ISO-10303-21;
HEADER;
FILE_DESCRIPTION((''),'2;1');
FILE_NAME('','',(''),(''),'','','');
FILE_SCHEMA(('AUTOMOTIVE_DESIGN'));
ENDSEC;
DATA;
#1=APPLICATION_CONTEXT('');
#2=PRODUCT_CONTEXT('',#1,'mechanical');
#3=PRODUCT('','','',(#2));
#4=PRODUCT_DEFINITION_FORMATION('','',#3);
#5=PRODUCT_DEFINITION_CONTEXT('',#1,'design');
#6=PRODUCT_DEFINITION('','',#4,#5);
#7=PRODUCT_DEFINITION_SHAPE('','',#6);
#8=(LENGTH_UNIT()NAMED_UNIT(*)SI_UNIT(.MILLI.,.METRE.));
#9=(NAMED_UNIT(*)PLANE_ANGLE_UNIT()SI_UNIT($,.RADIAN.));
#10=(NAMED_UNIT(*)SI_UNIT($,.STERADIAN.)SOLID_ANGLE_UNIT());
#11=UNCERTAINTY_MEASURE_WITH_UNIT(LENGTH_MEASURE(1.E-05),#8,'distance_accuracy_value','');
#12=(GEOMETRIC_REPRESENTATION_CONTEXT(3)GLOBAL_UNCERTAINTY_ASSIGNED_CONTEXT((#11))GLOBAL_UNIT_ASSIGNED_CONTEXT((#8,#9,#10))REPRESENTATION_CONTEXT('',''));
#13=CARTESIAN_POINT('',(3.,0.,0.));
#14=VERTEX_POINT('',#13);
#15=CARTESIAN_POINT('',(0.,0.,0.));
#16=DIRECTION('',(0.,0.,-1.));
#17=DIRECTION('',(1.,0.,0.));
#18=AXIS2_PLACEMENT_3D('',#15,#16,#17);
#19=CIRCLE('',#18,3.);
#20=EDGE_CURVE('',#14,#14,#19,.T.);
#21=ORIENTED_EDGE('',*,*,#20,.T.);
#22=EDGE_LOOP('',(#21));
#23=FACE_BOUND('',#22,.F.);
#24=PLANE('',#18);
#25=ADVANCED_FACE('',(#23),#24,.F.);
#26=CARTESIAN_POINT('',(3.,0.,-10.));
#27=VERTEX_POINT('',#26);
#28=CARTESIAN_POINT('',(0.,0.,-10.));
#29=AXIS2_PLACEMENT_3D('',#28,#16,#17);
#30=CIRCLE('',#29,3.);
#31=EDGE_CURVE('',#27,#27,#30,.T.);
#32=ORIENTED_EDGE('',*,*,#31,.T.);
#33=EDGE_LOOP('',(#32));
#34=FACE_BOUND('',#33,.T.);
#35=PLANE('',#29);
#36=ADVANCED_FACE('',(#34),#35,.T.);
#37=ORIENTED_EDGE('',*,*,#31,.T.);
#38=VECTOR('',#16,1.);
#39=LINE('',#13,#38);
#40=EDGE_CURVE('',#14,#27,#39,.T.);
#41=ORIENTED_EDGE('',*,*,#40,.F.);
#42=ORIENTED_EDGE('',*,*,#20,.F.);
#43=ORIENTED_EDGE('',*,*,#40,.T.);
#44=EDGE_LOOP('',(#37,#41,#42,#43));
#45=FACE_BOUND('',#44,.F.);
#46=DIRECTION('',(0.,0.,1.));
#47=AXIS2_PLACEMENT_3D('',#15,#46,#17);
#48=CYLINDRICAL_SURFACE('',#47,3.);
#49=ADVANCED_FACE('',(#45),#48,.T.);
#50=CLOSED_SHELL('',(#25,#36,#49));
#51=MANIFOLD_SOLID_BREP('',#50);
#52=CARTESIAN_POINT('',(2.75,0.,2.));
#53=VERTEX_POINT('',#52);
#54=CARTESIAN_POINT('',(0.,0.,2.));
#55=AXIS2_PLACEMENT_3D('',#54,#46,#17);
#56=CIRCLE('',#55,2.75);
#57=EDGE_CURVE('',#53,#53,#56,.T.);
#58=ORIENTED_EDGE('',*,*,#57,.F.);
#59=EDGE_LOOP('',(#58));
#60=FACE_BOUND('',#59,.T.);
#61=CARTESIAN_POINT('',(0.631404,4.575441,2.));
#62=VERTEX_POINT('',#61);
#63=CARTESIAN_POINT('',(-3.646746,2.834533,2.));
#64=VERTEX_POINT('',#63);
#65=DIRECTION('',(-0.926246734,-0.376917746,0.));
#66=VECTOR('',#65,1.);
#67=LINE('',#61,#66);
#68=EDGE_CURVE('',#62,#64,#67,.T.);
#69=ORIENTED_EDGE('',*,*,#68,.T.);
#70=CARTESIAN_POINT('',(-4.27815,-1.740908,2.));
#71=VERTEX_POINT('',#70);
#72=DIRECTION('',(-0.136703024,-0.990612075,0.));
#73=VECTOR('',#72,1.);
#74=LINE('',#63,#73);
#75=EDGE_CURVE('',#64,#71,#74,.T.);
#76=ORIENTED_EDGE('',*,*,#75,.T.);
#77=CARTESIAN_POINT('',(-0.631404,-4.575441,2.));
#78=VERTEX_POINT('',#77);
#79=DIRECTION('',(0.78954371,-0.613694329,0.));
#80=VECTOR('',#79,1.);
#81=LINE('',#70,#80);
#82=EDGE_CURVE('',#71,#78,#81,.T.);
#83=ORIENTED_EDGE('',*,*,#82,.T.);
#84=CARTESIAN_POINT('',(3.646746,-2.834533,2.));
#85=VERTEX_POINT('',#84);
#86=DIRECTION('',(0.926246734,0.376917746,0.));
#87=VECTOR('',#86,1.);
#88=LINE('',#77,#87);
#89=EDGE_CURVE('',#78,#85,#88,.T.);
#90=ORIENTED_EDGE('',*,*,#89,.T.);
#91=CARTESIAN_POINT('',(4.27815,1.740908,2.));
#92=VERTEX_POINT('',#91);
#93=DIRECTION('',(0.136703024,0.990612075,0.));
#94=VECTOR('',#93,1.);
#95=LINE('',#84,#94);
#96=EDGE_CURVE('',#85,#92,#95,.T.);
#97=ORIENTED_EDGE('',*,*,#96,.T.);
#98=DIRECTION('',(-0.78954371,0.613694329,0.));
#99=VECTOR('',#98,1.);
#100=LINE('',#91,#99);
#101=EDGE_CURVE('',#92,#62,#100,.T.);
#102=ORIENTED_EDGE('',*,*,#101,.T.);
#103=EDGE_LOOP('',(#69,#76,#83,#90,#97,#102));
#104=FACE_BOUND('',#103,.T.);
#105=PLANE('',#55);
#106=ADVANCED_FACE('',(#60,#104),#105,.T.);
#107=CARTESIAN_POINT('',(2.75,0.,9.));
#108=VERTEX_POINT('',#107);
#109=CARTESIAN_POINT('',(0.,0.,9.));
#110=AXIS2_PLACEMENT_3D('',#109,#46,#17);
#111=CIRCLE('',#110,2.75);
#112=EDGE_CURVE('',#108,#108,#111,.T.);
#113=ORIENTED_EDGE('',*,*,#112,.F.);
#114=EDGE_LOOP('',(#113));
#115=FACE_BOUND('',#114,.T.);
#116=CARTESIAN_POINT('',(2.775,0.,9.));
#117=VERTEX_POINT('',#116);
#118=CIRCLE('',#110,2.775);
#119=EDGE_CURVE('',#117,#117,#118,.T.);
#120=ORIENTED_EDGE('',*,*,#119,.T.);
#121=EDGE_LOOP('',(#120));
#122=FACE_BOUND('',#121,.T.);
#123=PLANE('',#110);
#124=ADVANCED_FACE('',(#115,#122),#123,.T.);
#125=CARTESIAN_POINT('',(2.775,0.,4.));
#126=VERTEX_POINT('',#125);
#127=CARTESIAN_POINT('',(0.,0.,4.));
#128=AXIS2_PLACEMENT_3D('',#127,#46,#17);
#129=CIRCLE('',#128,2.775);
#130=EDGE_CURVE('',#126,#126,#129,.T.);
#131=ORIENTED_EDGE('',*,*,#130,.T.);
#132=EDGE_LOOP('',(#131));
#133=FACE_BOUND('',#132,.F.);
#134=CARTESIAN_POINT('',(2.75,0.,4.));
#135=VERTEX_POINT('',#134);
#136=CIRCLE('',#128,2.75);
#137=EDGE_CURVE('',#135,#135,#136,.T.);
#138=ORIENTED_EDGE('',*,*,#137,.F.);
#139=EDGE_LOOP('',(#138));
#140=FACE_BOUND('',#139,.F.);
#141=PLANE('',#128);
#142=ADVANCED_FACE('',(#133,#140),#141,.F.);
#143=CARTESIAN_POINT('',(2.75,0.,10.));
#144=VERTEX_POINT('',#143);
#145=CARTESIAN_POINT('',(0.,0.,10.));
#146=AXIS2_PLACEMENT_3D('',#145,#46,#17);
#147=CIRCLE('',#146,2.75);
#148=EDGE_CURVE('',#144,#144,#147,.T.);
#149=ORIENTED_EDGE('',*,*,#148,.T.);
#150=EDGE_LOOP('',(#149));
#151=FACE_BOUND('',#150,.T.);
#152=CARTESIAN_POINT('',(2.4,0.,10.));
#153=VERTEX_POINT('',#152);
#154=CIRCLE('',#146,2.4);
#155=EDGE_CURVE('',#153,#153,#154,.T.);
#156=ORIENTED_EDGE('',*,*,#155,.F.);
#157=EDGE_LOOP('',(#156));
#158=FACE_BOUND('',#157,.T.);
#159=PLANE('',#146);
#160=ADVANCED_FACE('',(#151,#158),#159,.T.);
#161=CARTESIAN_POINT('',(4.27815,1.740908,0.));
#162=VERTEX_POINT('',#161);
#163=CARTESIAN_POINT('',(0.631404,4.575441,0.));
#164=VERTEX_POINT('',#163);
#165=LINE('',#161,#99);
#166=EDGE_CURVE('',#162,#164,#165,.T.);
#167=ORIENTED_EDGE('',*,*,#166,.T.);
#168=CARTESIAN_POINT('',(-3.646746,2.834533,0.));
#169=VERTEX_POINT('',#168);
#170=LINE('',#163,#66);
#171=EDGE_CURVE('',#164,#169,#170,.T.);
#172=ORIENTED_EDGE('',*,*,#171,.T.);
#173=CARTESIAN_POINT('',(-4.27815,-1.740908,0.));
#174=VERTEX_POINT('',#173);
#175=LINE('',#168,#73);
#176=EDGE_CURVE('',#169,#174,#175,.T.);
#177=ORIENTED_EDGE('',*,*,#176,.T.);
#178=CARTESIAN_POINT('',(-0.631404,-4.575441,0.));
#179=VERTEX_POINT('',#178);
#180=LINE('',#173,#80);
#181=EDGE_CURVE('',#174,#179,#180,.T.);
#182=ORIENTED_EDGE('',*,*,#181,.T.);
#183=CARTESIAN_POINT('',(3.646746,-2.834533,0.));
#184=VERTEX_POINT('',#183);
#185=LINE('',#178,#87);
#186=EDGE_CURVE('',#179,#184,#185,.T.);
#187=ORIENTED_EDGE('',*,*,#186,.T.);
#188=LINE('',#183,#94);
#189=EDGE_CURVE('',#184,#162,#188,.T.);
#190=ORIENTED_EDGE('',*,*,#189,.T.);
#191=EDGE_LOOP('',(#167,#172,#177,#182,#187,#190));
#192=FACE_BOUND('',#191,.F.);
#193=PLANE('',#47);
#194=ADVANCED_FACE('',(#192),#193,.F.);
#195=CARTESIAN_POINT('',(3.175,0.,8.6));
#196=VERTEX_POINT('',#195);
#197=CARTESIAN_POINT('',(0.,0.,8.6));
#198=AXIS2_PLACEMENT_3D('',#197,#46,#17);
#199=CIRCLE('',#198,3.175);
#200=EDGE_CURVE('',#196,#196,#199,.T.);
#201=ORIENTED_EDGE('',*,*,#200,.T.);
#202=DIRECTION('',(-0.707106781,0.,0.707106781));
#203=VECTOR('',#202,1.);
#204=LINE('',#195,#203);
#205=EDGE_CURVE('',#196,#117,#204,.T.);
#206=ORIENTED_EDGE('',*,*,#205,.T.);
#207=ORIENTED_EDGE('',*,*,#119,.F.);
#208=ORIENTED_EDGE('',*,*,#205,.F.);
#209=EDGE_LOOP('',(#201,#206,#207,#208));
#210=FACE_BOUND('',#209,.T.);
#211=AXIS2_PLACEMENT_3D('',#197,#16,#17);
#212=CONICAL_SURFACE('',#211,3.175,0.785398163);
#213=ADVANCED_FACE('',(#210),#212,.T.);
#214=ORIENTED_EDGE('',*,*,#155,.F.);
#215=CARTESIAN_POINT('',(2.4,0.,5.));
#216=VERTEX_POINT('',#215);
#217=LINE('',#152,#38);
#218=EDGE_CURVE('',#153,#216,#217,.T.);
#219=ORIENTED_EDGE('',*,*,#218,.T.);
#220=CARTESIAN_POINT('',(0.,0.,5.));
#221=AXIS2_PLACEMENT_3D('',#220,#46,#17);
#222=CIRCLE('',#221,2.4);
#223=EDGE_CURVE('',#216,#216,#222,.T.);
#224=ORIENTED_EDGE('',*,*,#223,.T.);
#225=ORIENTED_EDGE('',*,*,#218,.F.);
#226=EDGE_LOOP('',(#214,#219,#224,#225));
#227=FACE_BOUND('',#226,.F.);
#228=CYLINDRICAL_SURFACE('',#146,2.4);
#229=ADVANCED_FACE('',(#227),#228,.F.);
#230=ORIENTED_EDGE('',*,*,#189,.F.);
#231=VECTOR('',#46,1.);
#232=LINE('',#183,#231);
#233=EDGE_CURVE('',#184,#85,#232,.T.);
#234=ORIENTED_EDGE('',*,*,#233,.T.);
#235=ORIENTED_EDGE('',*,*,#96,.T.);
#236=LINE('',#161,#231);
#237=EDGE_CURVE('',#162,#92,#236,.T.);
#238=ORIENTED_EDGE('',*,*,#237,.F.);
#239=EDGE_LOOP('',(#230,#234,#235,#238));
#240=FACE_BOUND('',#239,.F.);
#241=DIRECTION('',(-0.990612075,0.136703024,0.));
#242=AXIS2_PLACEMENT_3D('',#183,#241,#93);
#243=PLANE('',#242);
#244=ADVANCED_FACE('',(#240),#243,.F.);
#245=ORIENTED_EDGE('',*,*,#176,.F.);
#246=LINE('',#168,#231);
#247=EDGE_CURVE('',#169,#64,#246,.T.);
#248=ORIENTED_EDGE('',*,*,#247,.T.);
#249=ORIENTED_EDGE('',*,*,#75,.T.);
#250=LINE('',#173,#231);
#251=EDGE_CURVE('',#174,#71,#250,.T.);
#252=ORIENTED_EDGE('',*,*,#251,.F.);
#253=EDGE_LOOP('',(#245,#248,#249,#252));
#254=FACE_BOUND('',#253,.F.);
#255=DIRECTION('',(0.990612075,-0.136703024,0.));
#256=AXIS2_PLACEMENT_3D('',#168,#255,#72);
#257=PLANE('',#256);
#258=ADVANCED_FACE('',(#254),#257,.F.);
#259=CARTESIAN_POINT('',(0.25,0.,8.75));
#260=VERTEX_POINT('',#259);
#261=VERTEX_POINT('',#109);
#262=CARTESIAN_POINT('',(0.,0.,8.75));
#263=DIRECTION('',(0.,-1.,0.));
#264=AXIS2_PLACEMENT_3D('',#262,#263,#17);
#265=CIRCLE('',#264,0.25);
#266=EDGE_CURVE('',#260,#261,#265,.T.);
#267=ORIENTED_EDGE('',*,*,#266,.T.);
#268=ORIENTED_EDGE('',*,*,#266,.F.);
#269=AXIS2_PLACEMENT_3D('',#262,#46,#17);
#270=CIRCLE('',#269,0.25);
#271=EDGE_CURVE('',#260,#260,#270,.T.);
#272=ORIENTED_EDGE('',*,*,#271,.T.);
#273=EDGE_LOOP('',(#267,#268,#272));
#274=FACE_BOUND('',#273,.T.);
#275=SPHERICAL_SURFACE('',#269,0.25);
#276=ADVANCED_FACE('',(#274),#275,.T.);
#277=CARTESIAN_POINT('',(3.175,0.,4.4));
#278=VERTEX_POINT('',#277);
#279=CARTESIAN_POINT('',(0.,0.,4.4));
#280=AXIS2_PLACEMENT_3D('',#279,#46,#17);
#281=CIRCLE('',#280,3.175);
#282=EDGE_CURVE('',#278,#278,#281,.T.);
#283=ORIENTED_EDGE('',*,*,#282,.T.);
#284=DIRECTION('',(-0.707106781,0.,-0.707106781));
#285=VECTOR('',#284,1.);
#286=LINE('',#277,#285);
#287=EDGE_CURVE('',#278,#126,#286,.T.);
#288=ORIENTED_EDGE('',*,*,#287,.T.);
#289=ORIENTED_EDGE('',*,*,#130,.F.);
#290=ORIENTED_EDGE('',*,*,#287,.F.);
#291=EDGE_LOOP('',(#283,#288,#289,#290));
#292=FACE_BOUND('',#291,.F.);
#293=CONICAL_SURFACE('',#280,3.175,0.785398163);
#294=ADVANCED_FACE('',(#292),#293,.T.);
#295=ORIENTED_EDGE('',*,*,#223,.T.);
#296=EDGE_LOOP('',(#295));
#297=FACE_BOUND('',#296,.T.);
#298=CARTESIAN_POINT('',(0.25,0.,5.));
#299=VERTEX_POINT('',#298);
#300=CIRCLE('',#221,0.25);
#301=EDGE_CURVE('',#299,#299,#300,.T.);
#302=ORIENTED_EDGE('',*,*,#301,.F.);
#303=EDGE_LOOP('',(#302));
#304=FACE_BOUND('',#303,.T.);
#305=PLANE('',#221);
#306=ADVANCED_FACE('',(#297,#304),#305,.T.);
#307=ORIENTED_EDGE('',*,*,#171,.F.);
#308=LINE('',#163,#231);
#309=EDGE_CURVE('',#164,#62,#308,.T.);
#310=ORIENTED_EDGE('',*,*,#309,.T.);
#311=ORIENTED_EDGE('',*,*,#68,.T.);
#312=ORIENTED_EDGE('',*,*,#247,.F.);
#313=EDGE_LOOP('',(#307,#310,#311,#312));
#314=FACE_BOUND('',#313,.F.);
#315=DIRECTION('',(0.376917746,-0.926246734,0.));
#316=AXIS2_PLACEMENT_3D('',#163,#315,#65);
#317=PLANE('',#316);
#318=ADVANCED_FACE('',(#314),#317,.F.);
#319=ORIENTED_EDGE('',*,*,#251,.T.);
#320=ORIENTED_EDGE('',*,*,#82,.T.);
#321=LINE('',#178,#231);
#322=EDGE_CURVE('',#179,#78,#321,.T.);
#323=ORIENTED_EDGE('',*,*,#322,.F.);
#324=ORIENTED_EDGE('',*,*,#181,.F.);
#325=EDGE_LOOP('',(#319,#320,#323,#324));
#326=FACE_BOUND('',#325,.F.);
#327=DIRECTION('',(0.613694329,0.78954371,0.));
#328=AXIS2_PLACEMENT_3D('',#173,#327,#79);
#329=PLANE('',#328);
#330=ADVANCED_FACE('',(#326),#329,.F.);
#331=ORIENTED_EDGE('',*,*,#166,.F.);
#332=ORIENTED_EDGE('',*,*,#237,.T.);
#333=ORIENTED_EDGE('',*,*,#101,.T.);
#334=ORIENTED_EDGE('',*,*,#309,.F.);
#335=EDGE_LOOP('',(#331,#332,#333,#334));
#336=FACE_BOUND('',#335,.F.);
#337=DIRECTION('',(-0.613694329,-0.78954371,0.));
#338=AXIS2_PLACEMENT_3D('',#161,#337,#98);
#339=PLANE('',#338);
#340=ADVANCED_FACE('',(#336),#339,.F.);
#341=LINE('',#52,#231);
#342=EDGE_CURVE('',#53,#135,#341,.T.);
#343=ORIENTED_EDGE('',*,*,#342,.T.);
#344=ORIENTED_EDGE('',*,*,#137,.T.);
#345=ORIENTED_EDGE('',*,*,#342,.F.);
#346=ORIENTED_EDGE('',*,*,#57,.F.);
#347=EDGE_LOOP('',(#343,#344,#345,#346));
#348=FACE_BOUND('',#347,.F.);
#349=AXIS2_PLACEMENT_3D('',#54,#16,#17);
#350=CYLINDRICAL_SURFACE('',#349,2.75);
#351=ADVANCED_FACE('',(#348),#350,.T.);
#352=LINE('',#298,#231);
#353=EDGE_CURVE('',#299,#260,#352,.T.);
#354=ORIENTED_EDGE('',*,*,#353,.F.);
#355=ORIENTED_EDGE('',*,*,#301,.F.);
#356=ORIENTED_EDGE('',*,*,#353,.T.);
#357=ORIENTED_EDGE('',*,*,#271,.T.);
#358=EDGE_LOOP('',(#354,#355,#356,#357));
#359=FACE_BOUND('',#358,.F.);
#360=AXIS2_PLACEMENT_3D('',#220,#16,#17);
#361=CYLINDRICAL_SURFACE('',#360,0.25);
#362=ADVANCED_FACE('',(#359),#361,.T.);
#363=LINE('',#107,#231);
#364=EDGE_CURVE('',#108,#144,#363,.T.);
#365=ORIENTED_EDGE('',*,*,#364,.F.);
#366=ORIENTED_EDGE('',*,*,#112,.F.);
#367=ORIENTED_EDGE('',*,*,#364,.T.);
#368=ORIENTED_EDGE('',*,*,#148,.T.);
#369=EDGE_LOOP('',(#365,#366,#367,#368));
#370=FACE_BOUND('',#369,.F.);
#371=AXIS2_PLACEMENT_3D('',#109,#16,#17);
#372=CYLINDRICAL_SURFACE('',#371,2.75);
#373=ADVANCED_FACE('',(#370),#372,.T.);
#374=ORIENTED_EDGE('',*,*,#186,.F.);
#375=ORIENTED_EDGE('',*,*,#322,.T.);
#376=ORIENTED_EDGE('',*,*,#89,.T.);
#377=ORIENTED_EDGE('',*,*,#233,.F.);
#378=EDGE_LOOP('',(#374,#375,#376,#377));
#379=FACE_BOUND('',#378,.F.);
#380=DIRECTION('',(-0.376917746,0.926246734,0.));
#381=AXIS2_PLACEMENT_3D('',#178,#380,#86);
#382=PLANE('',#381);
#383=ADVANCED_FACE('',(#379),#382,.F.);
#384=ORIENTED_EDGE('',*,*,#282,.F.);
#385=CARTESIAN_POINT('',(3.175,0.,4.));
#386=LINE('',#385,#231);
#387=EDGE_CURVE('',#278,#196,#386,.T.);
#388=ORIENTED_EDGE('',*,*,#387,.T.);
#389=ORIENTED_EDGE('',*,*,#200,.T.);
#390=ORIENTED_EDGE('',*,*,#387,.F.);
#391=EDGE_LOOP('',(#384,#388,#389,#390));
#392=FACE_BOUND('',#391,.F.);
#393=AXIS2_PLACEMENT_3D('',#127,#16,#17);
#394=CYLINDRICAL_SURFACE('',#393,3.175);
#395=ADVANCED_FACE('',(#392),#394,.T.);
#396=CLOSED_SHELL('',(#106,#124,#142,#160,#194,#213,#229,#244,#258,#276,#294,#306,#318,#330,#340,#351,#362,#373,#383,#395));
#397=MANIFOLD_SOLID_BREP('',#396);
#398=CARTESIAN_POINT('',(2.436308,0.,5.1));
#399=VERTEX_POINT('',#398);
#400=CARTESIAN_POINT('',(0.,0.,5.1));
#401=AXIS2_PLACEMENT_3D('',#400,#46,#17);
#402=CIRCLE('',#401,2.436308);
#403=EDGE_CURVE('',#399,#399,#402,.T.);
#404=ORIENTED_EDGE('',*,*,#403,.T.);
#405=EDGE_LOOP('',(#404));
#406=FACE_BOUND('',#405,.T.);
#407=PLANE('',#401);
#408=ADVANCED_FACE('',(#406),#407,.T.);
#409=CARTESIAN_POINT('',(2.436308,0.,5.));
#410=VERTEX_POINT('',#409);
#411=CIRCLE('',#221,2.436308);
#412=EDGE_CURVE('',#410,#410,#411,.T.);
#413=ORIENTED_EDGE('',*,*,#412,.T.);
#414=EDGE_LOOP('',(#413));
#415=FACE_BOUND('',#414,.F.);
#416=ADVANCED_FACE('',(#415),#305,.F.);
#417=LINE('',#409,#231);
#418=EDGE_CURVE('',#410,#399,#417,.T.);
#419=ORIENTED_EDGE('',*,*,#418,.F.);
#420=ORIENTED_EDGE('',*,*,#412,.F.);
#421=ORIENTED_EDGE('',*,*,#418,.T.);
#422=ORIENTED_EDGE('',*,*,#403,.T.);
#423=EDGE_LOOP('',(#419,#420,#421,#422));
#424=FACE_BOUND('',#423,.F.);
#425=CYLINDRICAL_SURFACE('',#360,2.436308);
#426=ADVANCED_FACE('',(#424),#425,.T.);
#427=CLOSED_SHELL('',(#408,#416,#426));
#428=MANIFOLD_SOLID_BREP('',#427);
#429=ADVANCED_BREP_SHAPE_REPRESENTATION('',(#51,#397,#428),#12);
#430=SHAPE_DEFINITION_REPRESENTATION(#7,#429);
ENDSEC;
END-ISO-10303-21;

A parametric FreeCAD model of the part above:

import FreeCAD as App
import Part
import Sketcher


def edges_at(feature, points):
    """Names of the edges that pass closest to the given points."""
    edges = feature.Shape.Edges
    near = lambda p: min(range(len(edges)), key=lambda i: edges[i].distToShape(Part.Vertex(*p))[0])
    return sorted({f"Edge{near(p) + 1}" for p in points})


def add_polygon(sketch, points):
    """Adds a closed chain of lines whose ends are joined by coincident constraints."""
    first, n = sketch.GeometryCount, len(points)
    for a, b in zip(points, points[1:] + points[:1]):
        sketch.addGeometry(Part.LineSegment(App.Vector(*a, 0), App.Vector(*b, 0)), False)
    for i in range(n):
        sketch.addConstraint(Sketcher.Constraint("Coincident", first + i, 2, first + (i + 1) % n, 1))

doc = App.newDocument("Part")
body = doc.addObject("PartDesign::Body", "Body")

sketch1 = body.newObject("Sketcher::SketchObject", "Sketch")
sketch1.AttachmentSupport = (doc.getObject("XY_Plane"), [""])
sketch1.MapMode = "FlatFace"
add_polygon(sketch1, [(0.631404, 4.575441), (-3.646746, 2.834533), (-4.27815, -1.740908), (-0.631404, -4.575441), (3.646746, -2.834533), (4.27815, 1.740908)])
sketch1.addConstraint(Sketcher.Constraint("Symmetric", 0, 2, 3, 2, -1, 1))
sketch1.addConstraint(Sketcher.Constraint("Symmetric", 1, 2, 4, 2, -1, 1))
sketch1.addConstraint(Sketcher.Constraint("Symmetric", 2, 2, 5, 2, -1, 1))
sketch1.addConstraint(Sketcher.Constraint("Equal", 0, 1))
sketch1.addConstraint(Sketcher.Constraint("Equal", 1, 2))
sketch1.addConstraint(Sketcher.Constraint("DistanceX", 1, 2, 4, 2, 8.556301))
sketch1.addConstraint(Sketcher.Constraint("DistanceY", 1, 2, -1, 1, 1.740908))
sketch1.addConstraint(Sketcher.Constraint("DistanceY", 2, 2, -1, 1, 4.575441))
sketch1.addConstraint(Sketcher.Constraint("DistanceY", 1, 2, 0, 2, 4.575441))
pad1 = body.newObject("PartDesign::Pad", "Pad")
pad1.Profile = sketch1
pad1.Length = 2

sketch2 = body.newObject("Sketcher::SketchObject", "Sketch001")
sketch2.AttachmentSupport = (doc.getObject("XY_Plane"), [""])
sketch2.MapMode = "FlatFace"
sketch2.AttachmentOffset = App.Placement(App.Vector(0, 0, 2), App.Rotation())
sketch2.addGeometry(Part.Circle(App.Vector(0, 0, 0), App.Vector(0, 0, 1), 2.75), False)
sketch2.addConstraint(Sketcher.Constraint("Coincident", 0, 3, -1, 1))
sketch2.addConstraint(Sketcher.Constraint("Diameter", 0, 5.5))
pad2 = body.newObject("PartDesign::Pad", "Pad001")
pad2.Profile = sketch2
pad2.Length = 2

sketch3 = body.newObject("Sketcher::SketchObject", "Sketch002")
sketch3.AttachmentSupport = (doc.getObject("XY_Plane"), [""])
sketch3.MapMode = "FlatFace"
sketch3.AttachmentOffset = App.Placement(App.Vector(0, 0, 4), App.Rotation())
sketch3.addGeometry(Part.Circle(App.Vector(0, 0, 0), App.Vector(0, 0, 1), 3.175), False)
sketch3.addConstraint(Sketcher.Constraint("Coincident", 0, 3, -1, 1))
sketch3.addConstraint(Sketcher.Constraint("Diameter", 0, 6.35))
pad3 = body.newObject("PartDesign::Pad", "Pad002")
pad3.Profile = sketch3
pad3.Length = 5

sketch4 = body.newObject("Sketcher::SketchObject", "Sketch003")
sketch4.AttachmentSupport = (doc.getObject("XY_Plane"), [""])
sketch4.MapMode = "FlatFace"
sketch4.AttachmentOffset = App.Placement(App.Vector(0, 0, 9), App.Rotation())
sketch4.addGeometry(Part.Circle(App.Vector(0, 0, 0), App.Vector(0, 0, 1), 2.75), False)
sketch4.addConstraint(Sketcher.Constraint("Coincident", 0, 3, -1, 1))
sketch4.addConstraint(Sketcher.Constraint("Diameter", 0, 5.5))
pad4 = body.newObject("PartDesign::Pad", "Pad003")
pad4.Profile = sketch4
pad4.Length = 1
doc.recompute()

chamfer = body.newObject("PartDesign::Chamfer", "Chamfer")
chamfer.Base = (pad4, edges_at(pad4, [(-3.175, 0, 9)]))
chamfer.Size = 0.4
doc.recompute()

chamfer2 = body.newObject("PartDesign::Chamfer", "Chamfer001")
chamfer2.Base = (chamfer, edges_at(chamfer, [(-3.175, 0, 4)]))
chamfer2.Size = 0.4

sketch5 = body.newObject("Sketcher::SketchObject", "Sketch004")
sketch5.AttachmentSupport = (doc.getObject("XY_Plane"), [""])
sketch5.MapMode = "FlatFace"
sketch5.AttachmentOffset = App.Placement(App.Vector(0, 0, 10), App.Rotation())
sketch5.addGeometry(Part.Circle(App.Vector(0, 0, 0), App.Vector(0, 0, 1), 2.4), False)
sketch5.addConstraint(Sketcher.Constraint("Coincident", 0, 3, -1, 1))
sketch5.addConstraint(Sketcher.Constraint("Diameter", 0, 4.8))
pocket1 = body.newObject("PartDesign::Pocket", "Pocket")
pocket1.Profile = sketch5
pocket1.Length = 5

sketch6 = body.newObject("Sketcher::SketchObject", "Sketch005")
sketch6.AttachmentSupport = (doc.getObject("XY_Plane"), [""])
sketch6.MapMode = "FlatFace"
sketch6.AttachmentOffset = App.Placement(App.Vector(0, 0, 5), App.Rotation())
sketch6.addGeometry(Part.Circle(App.Vector(0, 0, 0), App.Vector(0, 0, 1), 0.25), False)
sketch6.addConstraint(Sketcher.Constraint("Coincident", 0, 3, -1, 1))
sketch6.addConstraint(Sketcher.Constraint("Diameter", 0, 0.5))
pad5 = body.newObject("PartDesign::Pad", "Pad004")
pad5.Profile = sketch6
pad5.Length = 4
doc.recompute()

fillet = body.newObject("PartDesign::Fillet", "Fillet")
fillet.Base = (pad5, edges_at(pad5, [(-0.25, 0, 9)]))
fillet.Radius = 0.25
body2 = doc.addObject("PartDesign::Body", "Body001")

sketch7 = body2.newObject("Sketcher::SketchObject", "Sketch006")
sketch7.AttachmentSupport = (doc.getObject("XY_Plane001"), [""])
sketch7.MapMode = "FlatFace"
sketch7.addGeometry(Part.Circle(App.Vector(0, 0, 0), App.Vector(0, 0, 1), 3), False)
sketch7.addConstraint(Sketcher.Constraint("Coincident", 0, 3, -1, 1))
sketch7.addConstraint(Sketcher.Constraint("Diameter", 0, 6.0))
pad6 = body2.newObject("PartDesign::Pad", "Pad005")
pad6.Profile = sketch7
pad6.Length = 10
pad6.Reversed = True
body3 = doc.addObject("PartDesign::Body", "Body002")

sketch8 = body3.newObject("Sketcher::SketchObject", "Sketch007")
sketch8.AttachmentSupport = (doc.getObject("XY_Plane002"), [""])
sketch8.MapMode = "FlatFace"
sketch8.AttachmentOffset = App.Placement(App.Vector(0, 0, 5), App.Rotation())
sketch8.addGeometry(Part.Circle(App.Vector(0, 0, 0), App.Vector(0, 0, 1), 2.436308), False)
sketch8.addConstraint(Sketcher.Constraint("Coincident", 0, 3, -1, 1))
sketch8.addConstraint(Sketcher.Constraint("Diameter", 0, 4.872616))
pad7 = body3.newObject("PartDesign::Pad", "Pad006")
pad7.Profile = sketch8
pad7.Length = 0.1

doc.recompute()
